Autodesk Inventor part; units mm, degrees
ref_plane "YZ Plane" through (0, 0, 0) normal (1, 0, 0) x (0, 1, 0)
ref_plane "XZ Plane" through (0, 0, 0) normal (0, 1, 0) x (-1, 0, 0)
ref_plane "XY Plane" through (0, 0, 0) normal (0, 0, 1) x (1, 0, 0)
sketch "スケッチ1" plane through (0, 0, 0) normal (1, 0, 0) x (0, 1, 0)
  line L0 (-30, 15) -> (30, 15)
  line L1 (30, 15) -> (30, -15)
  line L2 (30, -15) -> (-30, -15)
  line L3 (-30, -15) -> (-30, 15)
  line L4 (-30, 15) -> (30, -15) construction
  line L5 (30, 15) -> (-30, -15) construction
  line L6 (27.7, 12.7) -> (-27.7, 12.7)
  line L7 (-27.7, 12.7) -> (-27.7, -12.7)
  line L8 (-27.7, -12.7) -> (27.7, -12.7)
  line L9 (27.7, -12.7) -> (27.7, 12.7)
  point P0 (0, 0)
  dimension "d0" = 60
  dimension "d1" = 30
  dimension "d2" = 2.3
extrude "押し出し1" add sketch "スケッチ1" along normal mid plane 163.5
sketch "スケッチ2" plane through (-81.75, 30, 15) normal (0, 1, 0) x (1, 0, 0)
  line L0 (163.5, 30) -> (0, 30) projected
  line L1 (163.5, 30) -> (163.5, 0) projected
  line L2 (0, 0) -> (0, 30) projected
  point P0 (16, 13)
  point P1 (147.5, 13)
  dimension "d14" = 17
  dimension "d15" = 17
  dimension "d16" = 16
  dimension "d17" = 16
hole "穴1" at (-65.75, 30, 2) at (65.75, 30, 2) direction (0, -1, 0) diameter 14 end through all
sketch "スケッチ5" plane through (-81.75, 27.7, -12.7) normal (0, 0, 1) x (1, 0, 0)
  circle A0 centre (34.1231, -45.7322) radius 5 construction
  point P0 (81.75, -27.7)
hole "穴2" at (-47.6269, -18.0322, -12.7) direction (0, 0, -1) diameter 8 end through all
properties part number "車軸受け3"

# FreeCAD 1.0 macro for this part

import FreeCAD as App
import Part
import Sketcher
from FreeCAD import Vector

doc = App.newDocument("Part")
body = doc.addObject("PartDesign::Body", "Body")

# Sketch on YZ plane
sketch1 = body.newObject("Sketcher::SketchObject", "Sketch")
sketch1.AttachmentSupport = (doc.getObject("YZ_Plane"), [""])
sketch1.MapMode = "FlatFace"
sketch1.addGeometry([
    Part.LineSegment(Vector(30, 15, 0), Vector(-30, 15, 0)),  # 0
    Part.LineSegment(Vector(-30, 15, 0), Vector(-30, -15, 0)),  # 1
    Part.LineSegment(Vector(-30, -15, 0), Vector(30, -15, 0)),  # 2
    Part.LineSegment(Vector(30, -15, 0), Vector(30, 15, 0)),  # 3
    Part.LineSegment(Vector(-28, 13, 0), Vector(28, 13, 0)),  # 4
    Part.LineSegment(Vector(28, 13, 0), Vector(28, -13, 0)),  # 5
    Part.LineSegment(Vector(28, -13, 0), Vector(-28, -13, 0)),  # 6
    Part.LineSegment(Vector(-28, -13, 0), Vector(-28, 13, 0)),  # 7
], False)
sketch1.addConstraint([
    Sketcher.Constraint("Coincident", 0, 2, 1, 1),
    Sketcher.Constraint("Coincident", 1, 2, 2, 1),
    Sketcher.Constraint("Coincident", 2, 2, 3, 1),
    Sketcher.Constraint("Coincident", 3, 2, 0, 1),
    Sketcher.Constraint("Coincident", 4, 2, 5, 1),
    Sketcher.Constraint("Coincident", 5, 2, 6, 1),
    Sketcher.Constraint("Coincident", 6, 2, 7, 1),
    Sketcher.Constraint("Coincident", 7, 2, 4, 1),
    Sketcher.Constraint("Horizontal", 0),
    Sketcher.Constraint("Vertical", 1),
    Sketcher.Constraint("Horizontal", 2),
    Sketcher.Constraint("Vertical", 3),
    Sketcher.Constraint("Horizontal", 4),
    Sketcher.Constraint("Vertical", 5),
    Sketcher.Constraint("Horizontal", 6),
    Sketcher.Constraint("Vertical", 7),
    Sketcher.Constraint("Symmetric", 0, 2, 2, 2, -1, 1),
    Sketcher.Constraint("Symmetric", 4, 2, 6, 2, -1, 1),
    Sketcher.Constraint("DistanceX", 0, 2, 0, 1, 60.0),
    Sketcher.Constraint("DistanceY", 1, 2, 1, 1, 30.0),
    Sketcher.Constraint("DistanceX", 4, 2, 3, 2, 2.3),
    Sketcher.Constraint("DistanceY", 4, 2, 3, 2, 2.3),
])
pad1 = body.newObject("PartDesign::Pad", "Pad")
pad1.Profile = sketch1
pad1.Length = 163.5
pad1.Midplane = True

# Sketch on XZ plane
sketch2 = body.newObject("Sketcher::SketchObject", "Sketch001")
sketch2.AttachmentSupport = (doc.getObject("XZ_Plane"), [""])
sketch2.MapMode = "FlatFace"
sketch2.AttachmentOffset = App.Placement(Vector(0, 0, -30), App.Rotation())
sketch2.addGeometry([
    Part.Circle(Vector(-66, 2, 0), Vector(0, 0, 1), 7),
    Part.Circle(Vector(66, 2, 0), Vector(0, 0, 1), 7),
], False)
sketch2.addConstraint([
    Sketcher.Constraint("Equal", 0, 1),
    Sketcher.Constraint("Symmetric", 0, 3, 1, 3, -2),
    Sketcher.Constraint("Diameter", 0, 14.0),
    Sketcher.Constraint("DistanceY", -1, 1, 0, 3, 2.0),
    Sketcher.Constraint("DistanceX", 0, 3, 1, 3, 131.5),
])
doc.recompute()
hole = body.newObject("PartDesign::Hole", "Hole")
hole.Profile = sketch2
hole.ThreadType = "None"
hole.Diameter = 14
hole.DepthType = "ThroughAll"
hole.Reversed = True

# Sketch on XY plane
sketch3 = body.newObject("Sketcher::SketchObject", "Sketch002")
sketch3.AttachmentSupport = (doc.getObject("XY_Plane"), [""])
sketch3.MapMode = "FlatFace"
sketch3.AttachmentOffset = App.Placement(Vector(0, 0, -12.7), App.Rotation())
sketch3.addGeometry(Part.Circle(Vector(-47.6, -18, 0), Vector(0, 0, 1), 4), False)
sketch3.addConstraint([
    Sketcher.Constraint("Diameter", 0, 8.0),
    Sketcher.Constraint("DistanceX", 0, 3, -1, 1, 47.627),
    Sketcher.Constraint("DistanceY", 0, 3, -1, 1, 18.0322),
])
doc.recompute()
hole2 = body.newObject("PartDesign::Hole", "Hole001")
hole2.Profile = sketch3
hole2.ThreadType = "None"
hole2.Diameter = 8
hole2.DepthType = "ThroughAll"

doc.recompute()
